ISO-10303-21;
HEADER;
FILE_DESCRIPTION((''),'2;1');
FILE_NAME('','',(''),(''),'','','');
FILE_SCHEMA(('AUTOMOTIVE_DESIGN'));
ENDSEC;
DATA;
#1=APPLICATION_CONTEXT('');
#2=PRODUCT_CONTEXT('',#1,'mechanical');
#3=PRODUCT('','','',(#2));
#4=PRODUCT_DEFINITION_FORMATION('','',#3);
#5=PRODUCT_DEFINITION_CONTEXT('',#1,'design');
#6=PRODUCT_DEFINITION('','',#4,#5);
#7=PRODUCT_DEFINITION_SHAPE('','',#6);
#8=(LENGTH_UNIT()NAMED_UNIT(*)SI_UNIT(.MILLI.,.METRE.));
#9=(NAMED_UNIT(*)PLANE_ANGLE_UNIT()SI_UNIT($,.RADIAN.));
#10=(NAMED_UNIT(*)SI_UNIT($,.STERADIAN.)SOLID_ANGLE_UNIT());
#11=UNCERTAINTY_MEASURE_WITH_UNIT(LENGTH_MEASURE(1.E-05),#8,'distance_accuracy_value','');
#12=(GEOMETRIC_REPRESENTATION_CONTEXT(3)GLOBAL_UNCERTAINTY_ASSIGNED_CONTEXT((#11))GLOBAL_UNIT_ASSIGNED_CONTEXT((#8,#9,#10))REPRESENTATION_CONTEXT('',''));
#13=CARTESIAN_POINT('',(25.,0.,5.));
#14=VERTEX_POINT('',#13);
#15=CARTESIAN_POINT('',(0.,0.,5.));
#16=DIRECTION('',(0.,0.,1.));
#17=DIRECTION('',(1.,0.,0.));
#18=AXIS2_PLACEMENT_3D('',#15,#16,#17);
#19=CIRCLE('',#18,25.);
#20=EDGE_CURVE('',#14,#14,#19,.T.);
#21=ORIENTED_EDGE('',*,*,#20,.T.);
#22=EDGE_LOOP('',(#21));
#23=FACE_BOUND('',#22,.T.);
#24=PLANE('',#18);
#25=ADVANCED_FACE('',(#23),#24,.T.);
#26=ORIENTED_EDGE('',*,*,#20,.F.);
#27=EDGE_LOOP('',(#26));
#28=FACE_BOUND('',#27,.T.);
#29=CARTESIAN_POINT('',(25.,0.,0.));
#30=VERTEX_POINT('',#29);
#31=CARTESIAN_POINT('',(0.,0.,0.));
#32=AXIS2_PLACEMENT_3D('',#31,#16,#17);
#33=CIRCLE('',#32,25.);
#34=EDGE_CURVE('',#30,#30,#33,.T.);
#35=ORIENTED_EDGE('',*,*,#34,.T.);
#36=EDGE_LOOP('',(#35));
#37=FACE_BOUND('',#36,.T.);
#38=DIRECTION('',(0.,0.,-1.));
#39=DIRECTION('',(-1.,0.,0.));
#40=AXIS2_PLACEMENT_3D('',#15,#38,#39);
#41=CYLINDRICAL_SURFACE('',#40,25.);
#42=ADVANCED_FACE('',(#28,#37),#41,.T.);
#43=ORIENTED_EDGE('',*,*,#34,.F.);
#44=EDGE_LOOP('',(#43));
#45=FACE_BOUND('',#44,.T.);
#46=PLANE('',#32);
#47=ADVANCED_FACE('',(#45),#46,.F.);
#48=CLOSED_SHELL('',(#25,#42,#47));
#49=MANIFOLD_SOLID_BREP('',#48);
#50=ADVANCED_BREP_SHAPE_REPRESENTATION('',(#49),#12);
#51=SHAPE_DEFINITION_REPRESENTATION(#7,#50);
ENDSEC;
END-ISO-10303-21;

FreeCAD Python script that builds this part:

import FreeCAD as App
import Part
import Sketcher

V = App.Vector
Q = App.Units.Quantity

doc = App.newDocument("Part")
params = doc.addObject("Spreadsheet::Sheet", "Params")
for row, (alias, value) in enumerate([
    ("sketch1_diameter", "50 mm"),
    ("pad1_length", "5 mm"),
], start=1):
    params.set(f"A{row}", alias)
    params.set(f"B{row}", "=" + value)
    params.setAlias(f"B{row}", alias)

body = doc.addObject("PartDesign::Body", "Body")

sketch1 = body.newObject("Sketcher::SketchObject", "Sketch")
sketch1.AttachmentSupport = (doc.getObject("XY_Plane"), [""])
sketch1.MapMode = "FlatFace"
sketch1.addGeometry(Part.Circle(V(0, 0, 0), V(0, 0, 1), 25), False)
sketch1.addConstraint([
    Sketcher.Constraint("Coincident", 0, 3, -1, 1),
    Sketcher.Constraint("Diameter", 0, Q("50 mm")),
])
sketch1.setExpression("Constraints[1]", "Params.sketch1_diameter")
pad1 = body.newObject("PartDesign::Pad", "Pad")
pad1.Profile = sketch1
pad1.setExpression("Length", "Params.pad1_length")

doc.recompute()
